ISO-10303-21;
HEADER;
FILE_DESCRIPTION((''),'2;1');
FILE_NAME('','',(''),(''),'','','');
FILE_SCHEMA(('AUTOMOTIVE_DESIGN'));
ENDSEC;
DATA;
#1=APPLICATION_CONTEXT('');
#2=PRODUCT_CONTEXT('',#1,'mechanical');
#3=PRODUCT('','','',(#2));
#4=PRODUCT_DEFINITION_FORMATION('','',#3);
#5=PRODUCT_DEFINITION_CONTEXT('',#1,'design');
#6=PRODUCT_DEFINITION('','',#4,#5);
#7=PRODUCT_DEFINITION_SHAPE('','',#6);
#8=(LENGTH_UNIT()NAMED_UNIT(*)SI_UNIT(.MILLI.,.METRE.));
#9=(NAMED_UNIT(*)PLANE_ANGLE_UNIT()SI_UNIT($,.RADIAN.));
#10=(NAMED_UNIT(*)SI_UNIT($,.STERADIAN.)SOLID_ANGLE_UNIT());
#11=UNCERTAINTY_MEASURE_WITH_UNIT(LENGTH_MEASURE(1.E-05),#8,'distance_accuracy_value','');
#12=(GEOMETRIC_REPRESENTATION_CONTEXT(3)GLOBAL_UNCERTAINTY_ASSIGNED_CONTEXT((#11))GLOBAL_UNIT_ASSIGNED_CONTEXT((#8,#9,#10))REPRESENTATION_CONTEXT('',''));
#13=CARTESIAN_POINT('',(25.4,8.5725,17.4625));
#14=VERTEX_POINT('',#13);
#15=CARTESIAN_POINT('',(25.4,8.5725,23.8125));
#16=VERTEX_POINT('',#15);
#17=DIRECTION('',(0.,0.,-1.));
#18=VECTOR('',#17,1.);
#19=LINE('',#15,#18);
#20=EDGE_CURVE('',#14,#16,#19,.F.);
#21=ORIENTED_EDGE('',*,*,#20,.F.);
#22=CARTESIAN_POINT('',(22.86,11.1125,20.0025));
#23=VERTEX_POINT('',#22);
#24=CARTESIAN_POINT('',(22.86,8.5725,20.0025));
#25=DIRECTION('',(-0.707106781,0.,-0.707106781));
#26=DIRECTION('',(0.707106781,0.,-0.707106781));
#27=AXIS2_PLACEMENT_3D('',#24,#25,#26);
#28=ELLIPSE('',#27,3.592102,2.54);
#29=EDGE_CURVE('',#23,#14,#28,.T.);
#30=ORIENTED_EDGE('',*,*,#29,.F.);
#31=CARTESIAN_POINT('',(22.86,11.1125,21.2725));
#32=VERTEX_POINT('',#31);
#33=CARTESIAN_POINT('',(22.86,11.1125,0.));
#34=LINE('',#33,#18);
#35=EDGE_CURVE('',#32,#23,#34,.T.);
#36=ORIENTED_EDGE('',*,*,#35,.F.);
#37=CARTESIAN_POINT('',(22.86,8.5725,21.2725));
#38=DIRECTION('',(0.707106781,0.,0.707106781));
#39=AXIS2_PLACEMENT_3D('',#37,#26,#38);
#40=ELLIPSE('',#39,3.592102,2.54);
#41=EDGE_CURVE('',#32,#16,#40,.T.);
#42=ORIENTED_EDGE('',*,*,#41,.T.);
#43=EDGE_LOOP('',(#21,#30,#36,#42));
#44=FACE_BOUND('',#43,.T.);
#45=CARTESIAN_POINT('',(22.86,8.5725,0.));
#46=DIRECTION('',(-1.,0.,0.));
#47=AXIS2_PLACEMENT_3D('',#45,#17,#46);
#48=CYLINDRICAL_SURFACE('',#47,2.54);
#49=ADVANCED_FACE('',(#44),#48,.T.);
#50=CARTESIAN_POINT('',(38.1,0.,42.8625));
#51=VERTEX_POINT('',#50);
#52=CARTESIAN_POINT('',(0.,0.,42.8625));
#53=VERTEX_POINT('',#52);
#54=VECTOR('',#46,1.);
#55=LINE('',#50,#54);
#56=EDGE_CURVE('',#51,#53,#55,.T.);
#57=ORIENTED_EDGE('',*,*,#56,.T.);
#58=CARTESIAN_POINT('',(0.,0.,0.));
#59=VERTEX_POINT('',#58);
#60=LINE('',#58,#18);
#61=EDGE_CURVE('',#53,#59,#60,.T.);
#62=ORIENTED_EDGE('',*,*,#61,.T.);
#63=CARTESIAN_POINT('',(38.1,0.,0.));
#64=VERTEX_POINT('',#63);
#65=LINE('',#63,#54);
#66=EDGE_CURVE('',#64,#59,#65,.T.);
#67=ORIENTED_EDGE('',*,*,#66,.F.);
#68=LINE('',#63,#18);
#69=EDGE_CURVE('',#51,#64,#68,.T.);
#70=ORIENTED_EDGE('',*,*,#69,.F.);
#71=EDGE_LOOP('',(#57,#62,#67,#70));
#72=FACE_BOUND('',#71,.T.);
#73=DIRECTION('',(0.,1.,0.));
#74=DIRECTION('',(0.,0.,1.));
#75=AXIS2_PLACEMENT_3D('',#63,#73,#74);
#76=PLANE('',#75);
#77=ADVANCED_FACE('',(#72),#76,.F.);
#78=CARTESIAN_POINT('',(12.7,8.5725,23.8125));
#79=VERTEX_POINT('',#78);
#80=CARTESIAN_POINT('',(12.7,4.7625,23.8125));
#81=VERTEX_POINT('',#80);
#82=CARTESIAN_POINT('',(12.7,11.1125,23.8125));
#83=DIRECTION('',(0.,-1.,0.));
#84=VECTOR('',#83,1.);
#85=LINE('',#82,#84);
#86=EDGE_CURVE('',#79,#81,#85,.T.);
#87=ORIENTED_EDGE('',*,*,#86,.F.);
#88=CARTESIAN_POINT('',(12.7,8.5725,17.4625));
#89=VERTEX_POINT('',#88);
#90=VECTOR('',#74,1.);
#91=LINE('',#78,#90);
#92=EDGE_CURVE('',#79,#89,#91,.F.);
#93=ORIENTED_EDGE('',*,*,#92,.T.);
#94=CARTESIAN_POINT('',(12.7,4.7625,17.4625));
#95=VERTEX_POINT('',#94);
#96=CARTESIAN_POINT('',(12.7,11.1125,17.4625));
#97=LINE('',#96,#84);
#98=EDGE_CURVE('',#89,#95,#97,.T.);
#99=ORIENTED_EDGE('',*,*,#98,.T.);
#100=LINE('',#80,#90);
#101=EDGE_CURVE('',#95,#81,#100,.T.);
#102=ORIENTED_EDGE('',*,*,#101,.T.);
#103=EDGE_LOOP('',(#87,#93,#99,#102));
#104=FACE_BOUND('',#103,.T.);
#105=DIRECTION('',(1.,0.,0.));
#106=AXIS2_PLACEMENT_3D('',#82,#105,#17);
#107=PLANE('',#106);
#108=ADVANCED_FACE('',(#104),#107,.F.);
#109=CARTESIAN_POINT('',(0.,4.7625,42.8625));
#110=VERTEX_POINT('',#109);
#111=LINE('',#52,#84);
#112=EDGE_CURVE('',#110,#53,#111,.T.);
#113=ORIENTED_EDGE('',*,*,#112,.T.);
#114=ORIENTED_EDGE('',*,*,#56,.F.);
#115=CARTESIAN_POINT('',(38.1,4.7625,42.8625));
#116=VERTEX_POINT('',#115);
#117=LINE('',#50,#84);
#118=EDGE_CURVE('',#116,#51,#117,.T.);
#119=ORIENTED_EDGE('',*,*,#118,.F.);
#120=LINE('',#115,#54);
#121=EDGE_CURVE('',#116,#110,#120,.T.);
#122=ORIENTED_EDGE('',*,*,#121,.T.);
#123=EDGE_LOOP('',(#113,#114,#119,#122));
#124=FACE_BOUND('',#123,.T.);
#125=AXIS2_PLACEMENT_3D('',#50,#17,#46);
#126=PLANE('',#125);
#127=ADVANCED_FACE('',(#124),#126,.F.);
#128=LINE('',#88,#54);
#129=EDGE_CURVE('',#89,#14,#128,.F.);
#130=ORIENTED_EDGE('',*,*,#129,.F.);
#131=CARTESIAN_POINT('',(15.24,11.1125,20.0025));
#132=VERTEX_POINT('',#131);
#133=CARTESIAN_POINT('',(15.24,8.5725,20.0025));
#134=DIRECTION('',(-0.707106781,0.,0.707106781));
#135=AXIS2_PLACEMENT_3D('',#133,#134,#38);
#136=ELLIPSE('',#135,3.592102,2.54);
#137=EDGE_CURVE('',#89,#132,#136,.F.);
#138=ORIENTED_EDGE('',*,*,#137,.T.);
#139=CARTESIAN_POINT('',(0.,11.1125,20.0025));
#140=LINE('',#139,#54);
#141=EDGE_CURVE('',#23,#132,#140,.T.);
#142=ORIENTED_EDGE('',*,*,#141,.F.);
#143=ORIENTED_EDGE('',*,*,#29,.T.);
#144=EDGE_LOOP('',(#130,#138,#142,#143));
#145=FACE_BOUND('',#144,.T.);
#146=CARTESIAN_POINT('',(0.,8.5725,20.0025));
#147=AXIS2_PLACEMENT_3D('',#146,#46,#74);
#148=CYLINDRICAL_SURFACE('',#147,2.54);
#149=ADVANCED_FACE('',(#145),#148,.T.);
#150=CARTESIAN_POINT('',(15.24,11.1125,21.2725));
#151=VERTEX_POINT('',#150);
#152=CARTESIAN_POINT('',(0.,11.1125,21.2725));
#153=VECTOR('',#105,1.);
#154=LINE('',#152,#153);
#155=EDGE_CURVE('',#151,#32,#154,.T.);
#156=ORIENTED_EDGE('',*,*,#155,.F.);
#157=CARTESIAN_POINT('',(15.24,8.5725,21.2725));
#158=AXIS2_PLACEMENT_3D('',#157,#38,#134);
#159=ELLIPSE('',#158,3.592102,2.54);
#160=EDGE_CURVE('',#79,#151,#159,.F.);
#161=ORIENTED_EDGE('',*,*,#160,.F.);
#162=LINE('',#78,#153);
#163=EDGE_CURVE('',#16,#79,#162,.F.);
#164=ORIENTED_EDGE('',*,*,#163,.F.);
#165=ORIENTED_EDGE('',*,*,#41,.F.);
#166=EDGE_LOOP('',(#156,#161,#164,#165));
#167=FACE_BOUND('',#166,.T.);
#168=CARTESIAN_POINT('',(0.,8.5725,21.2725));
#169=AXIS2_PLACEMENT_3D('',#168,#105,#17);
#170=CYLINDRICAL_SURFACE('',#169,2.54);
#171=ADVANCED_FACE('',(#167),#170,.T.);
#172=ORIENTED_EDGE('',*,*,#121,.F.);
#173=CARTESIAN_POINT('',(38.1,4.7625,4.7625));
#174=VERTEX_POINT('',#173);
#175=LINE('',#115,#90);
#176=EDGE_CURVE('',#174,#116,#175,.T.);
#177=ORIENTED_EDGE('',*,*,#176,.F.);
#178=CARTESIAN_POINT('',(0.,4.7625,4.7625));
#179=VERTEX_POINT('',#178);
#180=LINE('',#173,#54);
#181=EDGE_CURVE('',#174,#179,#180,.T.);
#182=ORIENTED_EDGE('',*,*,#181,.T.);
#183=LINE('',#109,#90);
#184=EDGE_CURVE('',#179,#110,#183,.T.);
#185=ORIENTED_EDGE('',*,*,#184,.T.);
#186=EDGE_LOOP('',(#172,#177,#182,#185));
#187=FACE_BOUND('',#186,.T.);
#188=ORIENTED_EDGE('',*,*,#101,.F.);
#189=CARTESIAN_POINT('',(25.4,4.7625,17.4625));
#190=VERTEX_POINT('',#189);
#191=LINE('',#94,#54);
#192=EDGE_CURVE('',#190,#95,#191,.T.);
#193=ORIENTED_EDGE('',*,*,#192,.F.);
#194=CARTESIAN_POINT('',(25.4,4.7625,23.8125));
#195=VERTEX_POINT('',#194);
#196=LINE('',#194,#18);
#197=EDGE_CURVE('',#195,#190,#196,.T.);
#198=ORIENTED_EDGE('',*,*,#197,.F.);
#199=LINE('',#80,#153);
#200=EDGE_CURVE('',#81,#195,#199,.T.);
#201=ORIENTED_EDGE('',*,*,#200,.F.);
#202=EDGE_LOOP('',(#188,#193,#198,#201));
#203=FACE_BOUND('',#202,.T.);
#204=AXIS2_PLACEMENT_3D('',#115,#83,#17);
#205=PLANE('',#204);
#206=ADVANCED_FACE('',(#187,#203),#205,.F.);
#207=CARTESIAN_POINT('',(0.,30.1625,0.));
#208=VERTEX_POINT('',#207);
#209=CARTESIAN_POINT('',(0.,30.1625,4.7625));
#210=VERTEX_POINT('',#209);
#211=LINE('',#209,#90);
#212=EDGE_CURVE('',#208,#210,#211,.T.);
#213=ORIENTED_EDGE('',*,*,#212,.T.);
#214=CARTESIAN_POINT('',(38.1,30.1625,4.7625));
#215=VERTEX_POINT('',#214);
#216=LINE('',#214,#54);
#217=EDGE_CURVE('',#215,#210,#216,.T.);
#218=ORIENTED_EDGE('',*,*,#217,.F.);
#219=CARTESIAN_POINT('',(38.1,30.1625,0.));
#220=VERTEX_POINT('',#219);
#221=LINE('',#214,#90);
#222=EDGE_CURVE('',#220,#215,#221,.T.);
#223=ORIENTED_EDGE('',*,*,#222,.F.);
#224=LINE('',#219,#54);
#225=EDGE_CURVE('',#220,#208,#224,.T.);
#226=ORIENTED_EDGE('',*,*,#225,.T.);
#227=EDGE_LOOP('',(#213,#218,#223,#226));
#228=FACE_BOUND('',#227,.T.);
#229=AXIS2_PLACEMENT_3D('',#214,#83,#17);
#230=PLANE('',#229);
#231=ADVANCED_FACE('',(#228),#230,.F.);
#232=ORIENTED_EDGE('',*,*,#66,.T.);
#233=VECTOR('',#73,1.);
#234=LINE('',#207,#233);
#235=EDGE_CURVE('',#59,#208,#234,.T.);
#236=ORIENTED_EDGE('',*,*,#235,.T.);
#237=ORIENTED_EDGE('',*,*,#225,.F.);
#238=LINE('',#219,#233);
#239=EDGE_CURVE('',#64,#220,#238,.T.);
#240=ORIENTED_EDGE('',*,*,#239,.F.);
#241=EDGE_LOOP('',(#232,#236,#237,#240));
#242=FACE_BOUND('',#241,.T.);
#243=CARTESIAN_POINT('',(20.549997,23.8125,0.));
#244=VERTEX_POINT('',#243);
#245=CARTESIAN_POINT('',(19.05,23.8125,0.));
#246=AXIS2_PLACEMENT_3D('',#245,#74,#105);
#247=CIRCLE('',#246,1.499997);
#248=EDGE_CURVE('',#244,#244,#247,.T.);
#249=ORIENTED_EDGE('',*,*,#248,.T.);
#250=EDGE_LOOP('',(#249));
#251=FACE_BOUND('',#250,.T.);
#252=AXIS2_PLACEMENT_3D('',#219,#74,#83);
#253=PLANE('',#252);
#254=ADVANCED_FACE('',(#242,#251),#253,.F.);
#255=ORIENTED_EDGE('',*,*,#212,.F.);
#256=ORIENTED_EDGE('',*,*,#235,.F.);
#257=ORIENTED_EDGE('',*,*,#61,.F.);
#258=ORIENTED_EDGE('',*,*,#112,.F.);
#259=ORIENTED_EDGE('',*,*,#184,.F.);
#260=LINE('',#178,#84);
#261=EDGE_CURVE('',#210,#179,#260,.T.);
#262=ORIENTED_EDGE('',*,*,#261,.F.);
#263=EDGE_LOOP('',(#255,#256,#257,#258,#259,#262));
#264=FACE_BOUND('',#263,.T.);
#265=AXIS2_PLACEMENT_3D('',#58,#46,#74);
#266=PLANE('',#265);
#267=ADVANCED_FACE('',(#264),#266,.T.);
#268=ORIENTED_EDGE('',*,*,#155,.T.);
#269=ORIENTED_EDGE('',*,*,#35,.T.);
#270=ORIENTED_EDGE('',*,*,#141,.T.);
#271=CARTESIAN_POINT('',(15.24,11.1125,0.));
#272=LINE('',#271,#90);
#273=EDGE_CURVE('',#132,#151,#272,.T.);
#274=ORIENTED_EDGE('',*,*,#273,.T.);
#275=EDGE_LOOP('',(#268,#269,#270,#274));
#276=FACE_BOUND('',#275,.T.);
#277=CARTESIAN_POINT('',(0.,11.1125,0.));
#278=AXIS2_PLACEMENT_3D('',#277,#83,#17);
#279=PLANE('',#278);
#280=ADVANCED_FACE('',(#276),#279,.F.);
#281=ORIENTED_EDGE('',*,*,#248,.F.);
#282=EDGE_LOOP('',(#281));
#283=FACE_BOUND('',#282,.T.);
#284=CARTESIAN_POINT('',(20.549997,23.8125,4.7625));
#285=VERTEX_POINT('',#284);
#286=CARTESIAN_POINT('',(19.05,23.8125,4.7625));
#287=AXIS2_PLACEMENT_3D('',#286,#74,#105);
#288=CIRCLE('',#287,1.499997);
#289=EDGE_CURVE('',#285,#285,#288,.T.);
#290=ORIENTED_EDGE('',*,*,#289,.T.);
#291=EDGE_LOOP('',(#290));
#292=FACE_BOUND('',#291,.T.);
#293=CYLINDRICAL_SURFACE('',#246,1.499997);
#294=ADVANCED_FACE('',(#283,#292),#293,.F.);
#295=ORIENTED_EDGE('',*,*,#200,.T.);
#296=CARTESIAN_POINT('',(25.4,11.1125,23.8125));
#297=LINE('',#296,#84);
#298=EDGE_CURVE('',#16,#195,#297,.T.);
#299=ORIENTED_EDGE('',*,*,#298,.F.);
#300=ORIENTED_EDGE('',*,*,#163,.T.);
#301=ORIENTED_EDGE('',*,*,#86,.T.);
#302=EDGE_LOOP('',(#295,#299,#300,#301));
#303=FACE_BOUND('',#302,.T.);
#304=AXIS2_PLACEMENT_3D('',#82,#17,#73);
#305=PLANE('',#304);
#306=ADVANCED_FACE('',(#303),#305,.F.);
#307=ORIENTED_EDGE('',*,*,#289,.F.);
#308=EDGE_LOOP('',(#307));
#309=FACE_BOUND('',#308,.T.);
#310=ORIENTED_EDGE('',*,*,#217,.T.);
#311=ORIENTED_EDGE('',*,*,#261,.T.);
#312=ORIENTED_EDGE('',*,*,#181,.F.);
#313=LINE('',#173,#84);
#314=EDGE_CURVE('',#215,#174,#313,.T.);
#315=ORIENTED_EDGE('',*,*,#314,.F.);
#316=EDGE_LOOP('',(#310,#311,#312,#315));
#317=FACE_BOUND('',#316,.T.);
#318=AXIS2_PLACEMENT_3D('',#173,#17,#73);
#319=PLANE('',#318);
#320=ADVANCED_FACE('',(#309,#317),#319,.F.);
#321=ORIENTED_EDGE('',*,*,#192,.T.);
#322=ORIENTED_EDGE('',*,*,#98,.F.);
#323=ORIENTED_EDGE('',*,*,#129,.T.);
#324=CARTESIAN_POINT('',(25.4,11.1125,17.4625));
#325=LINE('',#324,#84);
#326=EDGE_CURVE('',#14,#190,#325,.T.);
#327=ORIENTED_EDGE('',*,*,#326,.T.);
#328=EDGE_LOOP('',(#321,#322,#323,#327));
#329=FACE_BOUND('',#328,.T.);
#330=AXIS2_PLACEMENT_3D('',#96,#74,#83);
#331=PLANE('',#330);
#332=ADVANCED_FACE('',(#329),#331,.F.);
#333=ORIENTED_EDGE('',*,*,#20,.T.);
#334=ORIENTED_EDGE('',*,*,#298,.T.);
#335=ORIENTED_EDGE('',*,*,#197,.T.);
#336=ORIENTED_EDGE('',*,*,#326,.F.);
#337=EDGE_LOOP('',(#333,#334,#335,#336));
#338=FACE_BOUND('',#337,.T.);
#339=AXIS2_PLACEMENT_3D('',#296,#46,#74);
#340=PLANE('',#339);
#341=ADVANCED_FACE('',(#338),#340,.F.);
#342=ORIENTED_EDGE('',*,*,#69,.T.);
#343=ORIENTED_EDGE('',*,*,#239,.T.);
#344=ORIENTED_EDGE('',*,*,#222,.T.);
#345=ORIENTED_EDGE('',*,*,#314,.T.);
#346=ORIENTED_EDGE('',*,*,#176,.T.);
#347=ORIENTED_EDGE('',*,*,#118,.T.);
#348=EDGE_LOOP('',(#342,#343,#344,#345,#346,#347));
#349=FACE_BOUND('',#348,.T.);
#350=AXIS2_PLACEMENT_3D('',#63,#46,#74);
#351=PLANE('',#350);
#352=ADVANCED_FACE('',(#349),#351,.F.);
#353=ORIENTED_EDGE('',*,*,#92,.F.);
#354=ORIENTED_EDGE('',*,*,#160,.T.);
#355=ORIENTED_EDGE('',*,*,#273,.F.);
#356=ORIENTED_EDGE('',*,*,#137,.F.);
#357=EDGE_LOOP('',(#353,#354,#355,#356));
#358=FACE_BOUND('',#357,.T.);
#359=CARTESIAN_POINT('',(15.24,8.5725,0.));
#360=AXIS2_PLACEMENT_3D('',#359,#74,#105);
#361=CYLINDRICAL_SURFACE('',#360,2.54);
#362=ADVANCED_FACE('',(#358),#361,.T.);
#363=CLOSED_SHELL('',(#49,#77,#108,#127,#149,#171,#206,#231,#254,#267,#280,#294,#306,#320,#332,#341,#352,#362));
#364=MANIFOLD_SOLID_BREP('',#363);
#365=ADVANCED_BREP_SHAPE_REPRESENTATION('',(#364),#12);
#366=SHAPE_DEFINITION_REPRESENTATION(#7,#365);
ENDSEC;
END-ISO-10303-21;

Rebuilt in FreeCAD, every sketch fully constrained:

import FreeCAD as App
import Part
import Sketcher
from FreeCAD import Vector
Q = App.Units.Quantity


def edges_at(feature, points):
    """Names of the edges that pass closest to the given points."""
    edges = feature.Shape.Edges
    near = lambda p: min(range(len(edges)), key=lambda i: edges[i].distToShape(Part.Vertex(*p))[0])
    return sorted({f"Edge{near(p) + 1}" for p in points})

doc = App.newDocument("Part")
body = doc.addObject("PartDesign::Body", "Body")

# Sketch on YZ plane
sketch1 = body.newObject("Sketcher::SketchObject", "Sketch")
sketch1.AttachmentSupport = (doc.getObject("YZ_Plane"), [""])
sketch1.MapMode = "FlatFace"
sketch1.addGeometry([
    Part.LineSegment(Vector(0, 42.9, 0), Vector(0, 0, 0)),  # 0
    Part.LineSegment(Vector(0, 0, 0), Vector(30.2, 0, 0)),  # 1
    Part.LineSegment(Vector(30.2, 0, 0), Vector(30.2, 4.8, 0)),  # 2
    Part.LineSegment(Vector(30.2, 4.8, 0), Vector(4.8, 4.8, 0)),  # 3
    Part.LineSegment(Vector(4.8, 4.8, 0), Vector(4.8, 42.9, 0)),  # 4
    Part.LineSegment(Vector(4.8, 42.9, 0), Vector(0, 42.9, 0)),  # 5
], False)
sketch1.addConstraint([
    Sketcher.Constraint("Coincident", 0, 2, 1, 1),
    Sketcher.Constraint("Coincident", 1, 2, 2, 1),
    Sketcher.Constraint("Coincident", 2, 2, 3, 1),
    Sketcher.Constraint("Coincident", 3, 2, 4, 1),
    Sketcher.Constraint("Coincident", 4, 2, 5, 1),
    Sketcher.Constraint("Coincident", 5, 2, 0, 1),
    Sketcher.Constraint("Vertical", 0),
    Sketcher.Constraint("Horizontal", 1),
    Sketcher.Constraint("Vertical", 2),
    Sketcher.Constraint("Horizontal", 3),
    Sketcher.Constraint("Vertical", 4),
    Sketcher.Constraint("Horizontal", 5),
    Sketcher.Constraint("Coincident", 0, 2, -1, 1),
    Sketcher.Constraint("Equal", 5, 2),
    Sketcher.Constraint("DistanceX", 3, 2, 3, 1, Q("1 in")),
    Sketcher.Constraint("DistanceY", 4, 1, 4, 2, Q("1.5 in")),
    Sketcher.Constraint("DistanceX", 1, 1, 1, 2, Q("1.1875 in")),
])
pad1 = body.newObject("PartDesign::Pad", "Pad")
pad1.Profile = sketch1
pad1.Length = Q("1.5 in")

# Sketch on XZ plane
sketch2 = body.newObject("Sketcher::SketchObject", "Sketch001")
sketch2.AttachmentSupport = (doc.getObject("XZ_Plane"), [""])
sketch2.MapMode = "FlatFace"
sketch2.AttachmentOffset = App.Placement(Vector(0, 0, -0.1875 * 25.4), App.Rotation())
sketch2.addGeometry([
    Part.LineSegment(Vector(13, 17, 0), Vector(13, 24, 0)),
    Part.LineSegment(Vector(13, 24, 0), Vector(25, 24, 0)),
    Part.LineSegment(Vector(25, 24, 0), Vector(25, 17, 0)),
    Part.LineSegment(Vector(25, 17, 0), Vector(13, 17, 0)),
], False)
sketch2.addConstraint([
    Sketcher.Constraint("Coincident", 0, 2, 1, 1),
    Sketcher.Constraint("Coincident", 1, 2, 2, 1),
    Sketcher.Constraint("Coincident", 2, 2, 3, 1),
    Sketcher.Constraint("Coincident", 3, 2, 0, 1),
    Sketcher.Constraint("Vertical", 0),
    Sketcher.Constraint("Horizontal", 1),
    Sketcher.Constraint("Vertical", 2),
    Sketcher.Constraint("Horizontal", 3),
    Sketcher.Constraint("DistanceX", 1, 1, 1, 2, Q("0.5 in")),
    Sketcher.Constraint("DistanceX", -1, 1, 1, 2, Q("1 in")),
    Sketcher.Constraint("DistanceY", 0, 1, 0, 2, Q("0.25 in")),
    Sketcher.Constraint("DistanceY", -1, 1, 0, 2, Q("0.9375 in")),
])
pad2 = body.newObject("PartDesign::Pad", "Pad001")
pad2.Profile = sketch2
pad2.Length = Q("0.25 in")
pad2.Reversed = True

# Sketch on XY plane
sketch3 = body.newObject("Sketcher::SketchObject", "Sketch002")
sketch3.AttachmentSupport = (doc.getObject("XY_Plane"), [""])
sketch3.MapMode = "FlatFace"
sketch3.AttachmentOffset = App.Placement(Vector(0, 0, 0.1875 * 25.4), App.Rotation())
sketch3.addGeometry(Part.Circle(Vector(19.1, 23.8, 0), Vector(0, 0, 1), 1.5), False)
sketch3.addConstraint([
    Sketcher.Constraint("DistanceX", -1, 1, 0, 3, Q("0.75 in")),
    Sketcher.Constraint("DistanceY", -1, 1, 0, 3, Q("0.9375 in")),
    Sketcher.Constraint("Diameter", 0, Q("2.999994 mm")),
])
pocket1 = body.newObject("PartDesign::Pocket", "Pocket")
pocket1.Profile = sketch3
pocket1.Type = "ThroughAll"
doc.recompute()

fillet = body.newObject("PartDesign::Fillet", "Fillet")
fillet.Base = (pocket1, edges_at(pocket1, [
    (12.7, 11.113, 20.637),
    (19.05, 11.113, 23.812),
    (25.4, 11.113, 20.637),
    (19.05, 11.113, 17.462),
]))
fillet.Radius = Q("0.1 in")

doc.recompute()
